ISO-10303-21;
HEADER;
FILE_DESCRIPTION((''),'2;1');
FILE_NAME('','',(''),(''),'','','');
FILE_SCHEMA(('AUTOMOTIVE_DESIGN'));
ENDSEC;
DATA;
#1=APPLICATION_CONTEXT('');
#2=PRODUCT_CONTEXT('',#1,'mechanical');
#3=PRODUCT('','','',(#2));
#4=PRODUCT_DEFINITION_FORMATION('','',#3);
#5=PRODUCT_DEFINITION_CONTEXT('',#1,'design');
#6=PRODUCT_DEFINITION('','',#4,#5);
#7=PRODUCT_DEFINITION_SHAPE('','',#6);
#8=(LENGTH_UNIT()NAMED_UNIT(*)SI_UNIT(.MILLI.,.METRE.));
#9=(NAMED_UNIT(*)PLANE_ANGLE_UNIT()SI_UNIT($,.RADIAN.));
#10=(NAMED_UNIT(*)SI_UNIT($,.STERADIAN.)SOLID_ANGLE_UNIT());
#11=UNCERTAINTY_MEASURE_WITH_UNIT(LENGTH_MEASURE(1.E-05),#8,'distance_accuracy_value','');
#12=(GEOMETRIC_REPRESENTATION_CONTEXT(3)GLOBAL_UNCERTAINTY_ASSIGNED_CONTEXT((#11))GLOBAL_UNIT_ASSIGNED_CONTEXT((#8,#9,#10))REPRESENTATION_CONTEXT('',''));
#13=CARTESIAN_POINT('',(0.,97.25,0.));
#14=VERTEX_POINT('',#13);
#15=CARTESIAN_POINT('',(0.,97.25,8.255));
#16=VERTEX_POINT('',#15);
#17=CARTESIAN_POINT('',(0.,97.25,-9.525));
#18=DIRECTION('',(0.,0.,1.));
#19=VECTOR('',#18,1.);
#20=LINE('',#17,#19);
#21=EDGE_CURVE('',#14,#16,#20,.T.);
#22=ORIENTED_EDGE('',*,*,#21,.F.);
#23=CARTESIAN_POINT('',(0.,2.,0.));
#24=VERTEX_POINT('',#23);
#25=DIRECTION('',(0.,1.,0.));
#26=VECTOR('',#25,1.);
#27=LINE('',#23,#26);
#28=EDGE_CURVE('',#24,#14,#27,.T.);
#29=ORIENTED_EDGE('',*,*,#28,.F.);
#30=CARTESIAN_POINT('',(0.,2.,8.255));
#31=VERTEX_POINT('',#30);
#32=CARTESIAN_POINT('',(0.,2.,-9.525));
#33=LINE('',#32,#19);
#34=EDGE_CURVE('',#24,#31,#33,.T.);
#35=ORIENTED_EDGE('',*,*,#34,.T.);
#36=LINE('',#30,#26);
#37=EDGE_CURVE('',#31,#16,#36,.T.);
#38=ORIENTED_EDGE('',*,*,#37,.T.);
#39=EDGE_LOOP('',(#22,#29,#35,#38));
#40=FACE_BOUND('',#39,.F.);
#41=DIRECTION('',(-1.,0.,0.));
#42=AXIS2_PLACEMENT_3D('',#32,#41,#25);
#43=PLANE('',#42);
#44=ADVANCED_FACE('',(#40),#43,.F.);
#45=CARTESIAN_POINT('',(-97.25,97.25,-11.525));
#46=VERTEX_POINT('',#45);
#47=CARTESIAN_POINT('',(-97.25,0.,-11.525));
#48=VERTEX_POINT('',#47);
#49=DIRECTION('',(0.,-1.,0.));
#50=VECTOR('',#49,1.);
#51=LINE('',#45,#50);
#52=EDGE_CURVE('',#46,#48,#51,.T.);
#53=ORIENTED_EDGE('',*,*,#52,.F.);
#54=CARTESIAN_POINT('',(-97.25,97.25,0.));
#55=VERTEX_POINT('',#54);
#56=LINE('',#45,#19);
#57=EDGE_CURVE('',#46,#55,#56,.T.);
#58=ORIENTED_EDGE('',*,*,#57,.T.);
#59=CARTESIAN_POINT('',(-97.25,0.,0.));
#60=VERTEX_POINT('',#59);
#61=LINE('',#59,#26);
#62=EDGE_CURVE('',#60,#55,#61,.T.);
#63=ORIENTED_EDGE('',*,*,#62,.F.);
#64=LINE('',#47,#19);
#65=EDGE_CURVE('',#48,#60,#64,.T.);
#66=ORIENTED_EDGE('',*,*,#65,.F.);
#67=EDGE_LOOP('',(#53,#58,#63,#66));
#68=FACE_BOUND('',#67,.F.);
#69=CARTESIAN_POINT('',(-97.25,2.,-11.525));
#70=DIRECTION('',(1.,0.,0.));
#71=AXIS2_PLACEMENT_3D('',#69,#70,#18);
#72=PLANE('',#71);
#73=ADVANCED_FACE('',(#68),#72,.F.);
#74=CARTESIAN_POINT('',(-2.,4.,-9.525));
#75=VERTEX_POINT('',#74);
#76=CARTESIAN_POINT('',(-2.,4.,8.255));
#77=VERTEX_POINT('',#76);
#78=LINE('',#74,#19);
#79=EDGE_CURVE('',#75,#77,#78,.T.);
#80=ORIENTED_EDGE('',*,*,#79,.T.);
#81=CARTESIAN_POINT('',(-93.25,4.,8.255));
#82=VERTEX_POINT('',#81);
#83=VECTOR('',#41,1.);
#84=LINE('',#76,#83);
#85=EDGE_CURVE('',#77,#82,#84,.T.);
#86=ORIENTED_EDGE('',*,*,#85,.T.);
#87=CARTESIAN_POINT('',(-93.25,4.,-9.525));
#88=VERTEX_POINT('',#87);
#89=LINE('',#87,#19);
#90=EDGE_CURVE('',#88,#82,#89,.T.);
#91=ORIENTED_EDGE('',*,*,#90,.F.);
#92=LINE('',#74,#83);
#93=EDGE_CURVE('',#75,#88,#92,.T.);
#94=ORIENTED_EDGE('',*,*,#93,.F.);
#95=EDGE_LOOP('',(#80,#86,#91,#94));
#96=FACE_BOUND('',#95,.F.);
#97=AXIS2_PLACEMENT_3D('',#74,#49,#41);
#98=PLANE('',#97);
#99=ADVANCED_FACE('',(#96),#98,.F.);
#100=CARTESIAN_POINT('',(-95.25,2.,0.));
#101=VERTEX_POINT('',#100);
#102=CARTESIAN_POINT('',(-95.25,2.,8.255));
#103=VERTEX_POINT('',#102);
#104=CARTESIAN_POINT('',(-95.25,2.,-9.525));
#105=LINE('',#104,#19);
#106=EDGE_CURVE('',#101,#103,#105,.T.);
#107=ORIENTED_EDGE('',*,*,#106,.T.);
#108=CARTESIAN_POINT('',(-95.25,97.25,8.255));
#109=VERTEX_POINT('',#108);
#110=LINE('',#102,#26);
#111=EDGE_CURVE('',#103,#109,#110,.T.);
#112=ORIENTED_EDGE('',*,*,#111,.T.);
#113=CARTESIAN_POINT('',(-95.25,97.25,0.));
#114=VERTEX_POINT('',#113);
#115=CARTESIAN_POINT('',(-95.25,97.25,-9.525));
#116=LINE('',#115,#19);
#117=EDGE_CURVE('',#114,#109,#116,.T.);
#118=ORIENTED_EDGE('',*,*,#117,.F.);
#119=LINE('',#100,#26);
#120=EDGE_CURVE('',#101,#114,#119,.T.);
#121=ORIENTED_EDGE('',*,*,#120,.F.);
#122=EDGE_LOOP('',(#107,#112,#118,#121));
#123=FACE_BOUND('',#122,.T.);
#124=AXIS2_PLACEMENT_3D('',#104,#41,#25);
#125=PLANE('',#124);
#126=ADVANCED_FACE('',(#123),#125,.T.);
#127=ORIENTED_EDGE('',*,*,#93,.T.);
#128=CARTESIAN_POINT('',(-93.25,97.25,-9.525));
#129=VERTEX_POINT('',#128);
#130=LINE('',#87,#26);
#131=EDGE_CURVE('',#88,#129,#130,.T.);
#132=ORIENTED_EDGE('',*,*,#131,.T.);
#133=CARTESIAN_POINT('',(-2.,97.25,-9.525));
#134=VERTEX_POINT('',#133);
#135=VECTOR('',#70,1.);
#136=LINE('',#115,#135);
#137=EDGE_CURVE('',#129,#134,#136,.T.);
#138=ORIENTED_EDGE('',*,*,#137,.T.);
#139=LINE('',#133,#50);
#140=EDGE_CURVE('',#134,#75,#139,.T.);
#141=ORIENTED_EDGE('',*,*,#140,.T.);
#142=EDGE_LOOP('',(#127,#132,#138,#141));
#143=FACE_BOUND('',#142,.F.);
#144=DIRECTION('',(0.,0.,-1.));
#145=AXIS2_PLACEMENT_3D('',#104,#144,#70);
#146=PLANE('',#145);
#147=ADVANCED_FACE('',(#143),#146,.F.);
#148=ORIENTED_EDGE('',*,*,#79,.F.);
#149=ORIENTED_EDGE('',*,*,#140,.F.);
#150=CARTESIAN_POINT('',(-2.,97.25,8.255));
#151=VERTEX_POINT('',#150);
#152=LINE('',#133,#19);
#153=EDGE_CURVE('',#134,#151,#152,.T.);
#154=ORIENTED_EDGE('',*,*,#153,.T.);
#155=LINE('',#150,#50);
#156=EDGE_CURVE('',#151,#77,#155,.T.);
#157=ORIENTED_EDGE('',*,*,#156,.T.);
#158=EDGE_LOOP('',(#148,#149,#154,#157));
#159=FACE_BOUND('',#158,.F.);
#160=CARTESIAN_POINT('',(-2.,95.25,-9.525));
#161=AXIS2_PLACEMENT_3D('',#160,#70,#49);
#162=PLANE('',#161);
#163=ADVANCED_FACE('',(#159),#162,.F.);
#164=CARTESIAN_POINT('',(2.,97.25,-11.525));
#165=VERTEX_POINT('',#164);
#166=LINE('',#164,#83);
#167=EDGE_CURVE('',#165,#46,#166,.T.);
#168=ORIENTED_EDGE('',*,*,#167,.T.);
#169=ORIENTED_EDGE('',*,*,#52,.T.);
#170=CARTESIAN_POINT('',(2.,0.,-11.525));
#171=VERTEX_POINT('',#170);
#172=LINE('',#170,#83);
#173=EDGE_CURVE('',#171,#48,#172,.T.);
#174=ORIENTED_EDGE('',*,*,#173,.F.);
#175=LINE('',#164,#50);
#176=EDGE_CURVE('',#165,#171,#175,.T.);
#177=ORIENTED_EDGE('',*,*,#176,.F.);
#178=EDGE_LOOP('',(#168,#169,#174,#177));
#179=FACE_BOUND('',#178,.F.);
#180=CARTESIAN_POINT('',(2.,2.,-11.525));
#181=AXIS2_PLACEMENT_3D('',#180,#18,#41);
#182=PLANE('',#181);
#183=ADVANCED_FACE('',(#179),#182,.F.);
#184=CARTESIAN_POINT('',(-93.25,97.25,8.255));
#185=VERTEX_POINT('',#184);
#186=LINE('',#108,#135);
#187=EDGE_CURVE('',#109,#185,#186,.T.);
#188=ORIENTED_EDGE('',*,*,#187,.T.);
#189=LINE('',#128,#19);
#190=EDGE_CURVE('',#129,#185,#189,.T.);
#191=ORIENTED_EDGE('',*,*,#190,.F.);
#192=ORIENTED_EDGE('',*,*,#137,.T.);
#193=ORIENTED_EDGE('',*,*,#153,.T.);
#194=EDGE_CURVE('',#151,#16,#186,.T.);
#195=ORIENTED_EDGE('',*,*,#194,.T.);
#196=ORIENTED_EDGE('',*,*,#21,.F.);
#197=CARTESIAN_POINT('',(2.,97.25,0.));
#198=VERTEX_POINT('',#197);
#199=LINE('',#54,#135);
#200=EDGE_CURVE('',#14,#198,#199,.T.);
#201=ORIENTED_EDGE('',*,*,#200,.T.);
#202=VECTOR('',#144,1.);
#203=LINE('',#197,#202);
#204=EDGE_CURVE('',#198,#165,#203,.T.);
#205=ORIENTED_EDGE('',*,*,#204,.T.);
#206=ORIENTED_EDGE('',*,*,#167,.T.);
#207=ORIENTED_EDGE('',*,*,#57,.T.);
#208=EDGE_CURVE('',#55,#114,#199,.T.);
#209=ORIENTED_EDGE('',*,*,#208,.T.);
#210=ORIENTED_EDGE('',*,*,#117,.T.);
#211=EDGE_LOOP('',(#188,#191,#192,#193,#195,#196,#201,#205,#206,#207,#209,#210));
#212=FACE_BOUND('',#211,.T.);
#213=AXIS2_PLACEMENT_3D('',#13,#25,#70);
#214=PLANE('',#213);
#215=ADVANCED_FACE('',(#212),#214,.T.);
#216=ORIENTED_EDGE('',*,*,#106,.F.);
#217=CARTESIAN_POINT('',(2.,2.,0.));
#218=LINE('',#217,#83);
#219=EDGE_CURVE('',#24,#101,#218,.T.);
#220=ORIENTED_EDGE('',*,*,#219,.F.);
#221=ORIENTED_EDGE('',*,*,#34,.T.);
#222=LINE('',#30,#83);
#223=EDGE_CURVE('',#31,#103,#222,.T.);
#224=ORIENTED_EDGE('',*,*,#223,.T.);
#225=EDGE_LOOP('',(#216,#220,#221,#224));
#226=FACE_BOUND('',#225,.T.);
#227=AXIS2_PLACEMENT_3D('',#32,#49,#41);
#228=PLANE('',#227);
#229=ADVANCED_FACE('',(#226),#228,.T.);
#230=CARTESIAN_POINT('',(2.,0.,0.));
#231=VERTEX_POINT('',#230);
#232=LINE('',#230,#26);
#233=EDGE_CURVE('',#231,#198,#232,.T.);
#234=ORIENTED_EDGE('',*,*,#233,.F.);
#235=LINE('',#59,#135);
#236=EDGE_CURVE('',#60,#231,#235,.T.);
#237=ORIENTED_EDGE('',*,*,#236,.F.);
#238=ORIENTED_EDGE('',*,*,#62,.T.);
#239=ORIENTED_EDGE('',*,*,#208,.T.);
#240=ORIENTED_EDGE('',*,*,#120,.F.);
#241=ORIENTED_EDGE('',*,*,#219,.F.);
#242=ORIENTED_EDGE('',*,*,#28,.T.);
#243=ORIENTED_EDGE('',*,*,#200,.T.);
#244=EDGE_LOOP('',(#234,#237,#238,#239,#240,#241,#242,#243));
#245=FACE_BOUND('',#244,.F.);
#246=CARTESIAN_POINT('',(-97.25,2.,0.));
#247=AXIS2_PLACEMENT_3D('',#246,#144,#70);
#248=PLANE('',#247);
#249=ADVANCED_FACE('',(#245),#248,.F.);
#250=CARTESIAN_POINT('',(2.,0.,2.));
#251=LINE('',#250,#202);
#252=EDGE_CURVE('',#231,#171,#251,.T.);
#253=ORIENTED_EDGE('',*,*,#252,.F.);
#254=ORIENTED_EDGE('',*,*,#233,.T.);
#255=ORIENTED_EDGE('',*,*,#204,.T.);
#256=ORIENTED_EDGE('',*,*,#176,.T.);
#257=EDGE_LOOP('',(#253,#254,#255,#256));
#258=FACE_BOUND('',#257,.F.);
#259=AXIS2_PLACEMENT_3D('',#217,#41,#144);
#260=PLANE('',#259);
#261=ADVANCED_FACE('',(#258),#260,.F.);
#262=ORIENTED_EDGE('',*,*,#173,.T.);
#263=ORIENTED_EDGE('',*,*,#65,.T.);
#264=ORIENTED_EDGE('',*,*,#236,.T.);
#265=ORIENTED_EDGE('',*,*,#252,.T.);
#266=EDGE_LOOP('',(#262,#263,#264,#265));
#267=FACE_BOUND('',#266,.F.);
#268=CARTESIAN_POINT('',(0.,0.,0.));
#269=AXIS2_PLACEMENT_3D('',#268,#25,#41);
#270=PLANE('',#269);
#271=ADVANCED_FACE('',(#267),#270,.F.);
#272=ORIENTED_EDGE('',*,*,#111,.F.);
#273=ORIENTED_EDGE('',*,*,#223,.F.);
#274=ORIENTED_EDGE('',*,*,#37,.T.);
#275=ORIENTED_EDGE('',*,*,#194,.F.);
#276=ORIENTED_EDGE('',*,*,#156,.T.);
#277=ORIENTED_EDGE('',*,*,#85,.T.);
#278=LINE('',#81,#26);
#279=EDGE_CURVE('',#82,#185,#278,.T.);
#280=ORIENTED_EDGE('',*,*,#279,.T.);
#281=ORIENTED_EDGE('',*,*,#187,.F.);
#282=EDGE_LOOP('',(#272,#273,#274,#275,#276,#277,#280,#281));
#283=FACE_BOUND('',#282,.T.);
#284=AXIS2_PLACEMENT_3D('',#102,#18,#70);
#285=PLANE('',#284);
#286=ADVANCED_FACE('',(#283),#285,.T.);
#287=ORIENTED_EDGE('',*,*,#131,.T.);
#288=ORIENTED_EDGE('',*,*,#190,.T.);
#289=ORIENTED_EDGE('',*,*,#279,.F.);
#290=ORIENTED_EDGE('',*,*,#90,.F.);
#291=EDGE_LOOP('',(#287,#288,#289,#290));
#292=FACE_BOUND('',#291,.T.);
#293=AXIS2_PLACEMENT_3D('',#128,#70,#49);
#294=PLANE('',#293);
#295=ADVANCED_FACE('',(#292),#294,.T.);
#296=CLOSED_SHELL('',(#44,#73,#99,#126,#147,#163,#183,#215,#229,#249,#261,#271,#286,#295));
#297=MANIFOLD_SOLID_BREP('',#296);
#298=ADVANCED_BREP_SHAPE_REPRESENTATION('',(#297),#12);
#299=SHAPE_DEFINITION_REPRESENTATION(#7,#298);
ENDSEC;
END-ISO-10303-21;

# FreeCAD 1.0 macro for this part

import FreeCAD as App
import Part
import Sketcher
from FreeCAD import Vector
Q = App.Units.Quantity


def add_polygon(sketch, points):
    """Adds a closed chain of lines whose ends are joined by coincident constraints."""
    first, n = sketch.GeometryCount, len(points)
    for a, b in zip(points, points[1:] + points[:1]):
        sketch.addGeometry(Part.LineSegment(App.Vector(*a, 0), App.Vector(*b, 0)), False)
    for i in range(n):
        sketch.addConstraint(Sketcher.Constraint("Coincident", first + i, 2, first + (i + 1) % n, 1))

doc = App.newDocument("Part")
body = doc.addObject("PartDesign::Body", "Body")

# Sketch on XZ plane
sketch1 = body.newObject("Sketcher::SketchObject", "Sketch")
sketch1.AttachmentSupport = (doc.getObject("XZ_Plane"), [""])
sketch1.MapMode = "FlatFace"
add_polygon(sketch1, [(2, 0), (2, -12), (-97, -12), (-97, 0)])  # lines 0-3
sketch1.addConstraint([
    Sketcher.Constraint("Vertical", 0),
    Sketcher.Constraint("Horizontal", 1),
    Sketcher.Constraint("Vertical", 2),
    Sketcher.Constraint("Horizontal", 3),
    Sketcher.Constraint("PointOnObject", 2, 2, -1),
    Sketcher.Constraint("DistanceX", -1, 1, 0, 2, 2.0),
    Sketcher.Constraint("DistanceX", 1, 2, 1, 1, 99.25),
    Sketcher.Constraint("DistanceY", 0, 2, 0, 1, 11.525),
])
pad1 = body.newObject("PartDesign::Pad", "Pad")
pad1.Profile = sketch1
pad1.Length = 2
pad1.Reversed = True

# Sketch on XZ plane
sketch2 = body.newObject("Sketcher::SketchObject", "Sketch001")
sketch2.AttachmentSupport = (doc.getObject("XZ_Plane"), [""])
sketch2.MapMode = "FlatFace"
sketch2.AttachmentOffset = App.Placement(Vector(0, 0, -2), App.Rotation())
add_polygon(sketch2, [(-97.2, -11.5), (-97.2, 0), (-95.2, 0), (-95.2, -9.5), (0, -9.5), (0, 0), (2, 0), (2, -11.5)])  # lines 0-7
sketch2.addConstraint([
    Sketcher.Constraint("Vertical", 0),
    Sketcher.Constraint("Horizontal", 1),
    Sketcher.Constraint("Vertical", 2),
    Sketcher.Constraint("Horizontal", 3),
    Sketcher.Constraint("Vertical", 4),
    Sketcher.Constraint("Horizontal", 5),
    Sketcher.Constraint("Vertical", 6),
    Sketcher.Constraint("Horizontal", 7),
    Sketcher.Constraint("Coincident", 4, 2, -1, 1),
    Sketcher.Constraint("PointOnObject", 0, 2, -1),
    Sketcher.Constraint("Equal", 1, 5),
    Sketcher.Constraint("DistanceX", 1, 1, 1, 2, 2.0),
    Sketcher.Constraint("DistanceX", 3, 1, 3, 2, Q("3.75 in")),
    Sketcher.Constraint("DistanceY", 2, 2, 2, 1, Q("0.375 in")),
    Sketcher.Constraint("DistanceY", 6, 2, 3, 2, 2.0),
])
pad2 = body.newObject("PartDesign::Pad", "Pad001")
pad2.Profile = sketch2
pad2.Length = Q("3.75 in")
pad2.Reversed = True

# Sketch on XY plane
sketch3 = body.newObject("Sketcher::SketchObject", "Sketch002")
sketch3.AttachmentSupport = (doc.getObject("XY_Plane"), [""])
sketch3.MapMode = "FlatFace"
sketch3.AttachmentOffset = App.Placement(Vector(0, 0, -0.375 * 25.4), App.Rotation())
add_polygon(sketch3, [(-95.2, 2), (0, 2), (0, 97.2), (-2, 97.2), (-2, 4), (-93.2, 4), (-93.2, 97.2), (-95.2, 97.2)])  # lines 0-7
sketch3.addConstraint([
    Sketcher.Constraint("Horizontal", 0),
    Sketcher.Constraint("Vertical", 1),
    Sketcher.Constraint("Horizontal", 2),
    Sketcher.Constraint("Vertical", 3),
    Sketcher.Constraint("Horizontal", 4),
    Sketcher.Constraint("Vertical", 5),
    Sketcher.Constraint("Horizontal", 6),
    Sketcher.Constraint("Vertical", 7),
    Sketcher.Constraint("PointOnObject", 0, 2, -2),
    Sketcher.Constraint("Horizontal", 2, 2, 5, 2),
    Sketcher.Constraint("Equal", 2, 6),
    Sketcher.Constraint("Equal", 0, 1),
    Sketcher.Constraint("DistanceX", 0, 1, 0, 2, Q("3.75 in")),
    Sketcher.Constraint("DistanceX", 2, 2, 2, 1, 2.0),
    Sketcher.Constraint("DistanceY", -1, 1, 0, 2, 2.0),
    Sketcher.Constraint("DistanceY", 0, 2, 3, 2, 2.0),
])
pad3 = body.newObject("PartDesign::Pad", "Pad002")
pad3.Profile = sketch3
pad3.Length = Q("0.7 in")

doc.recompute()
